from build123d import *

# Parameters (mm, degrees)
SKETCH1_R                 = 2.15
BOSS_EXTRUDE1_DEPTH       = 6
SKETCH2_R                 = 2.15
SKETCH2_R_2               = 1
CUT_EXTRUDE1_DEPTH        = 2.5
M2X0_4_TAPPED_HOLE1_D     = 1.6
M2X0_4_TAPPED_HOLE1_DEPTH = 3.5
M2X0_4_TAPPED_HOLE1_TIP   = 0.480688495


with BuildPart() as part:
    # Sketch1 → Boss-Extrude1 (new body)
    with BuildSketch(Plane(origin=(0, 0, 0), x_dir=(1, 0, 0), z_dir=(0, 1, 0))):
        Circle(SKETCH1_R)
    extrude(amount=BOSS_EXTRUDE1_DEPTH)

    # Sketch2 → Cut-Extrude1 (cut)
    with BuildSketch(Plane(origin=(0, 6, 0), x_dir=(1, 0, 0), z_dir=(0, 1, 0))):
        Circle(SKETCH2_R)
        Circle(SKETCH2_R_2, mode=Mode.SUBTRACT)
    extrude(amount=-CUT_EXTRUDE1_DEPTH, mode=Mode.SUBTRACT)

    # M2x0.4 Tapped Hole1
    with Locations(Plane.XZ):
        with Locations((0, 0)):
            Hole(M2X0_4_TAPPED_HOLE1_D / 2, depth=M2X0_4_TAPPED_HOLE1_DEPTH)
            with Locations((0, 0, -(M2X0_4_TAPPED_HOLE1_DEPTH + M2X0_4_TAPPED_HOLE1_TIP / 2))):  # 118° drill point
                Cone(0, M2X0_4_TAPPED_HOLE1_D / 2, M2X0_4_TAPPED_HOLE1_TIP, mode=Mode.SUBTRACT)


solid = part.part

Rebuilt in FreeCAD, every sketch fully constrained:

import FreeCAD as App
import Part
import Sketcher
from FreeCAD import Vector
Q = App.Units.Quantity

doc = App.newDocument("Part")
body = doc.addObject("PartDesign::Body", "Body")

# Sketch on XZ plane
sketch1 = doc.addObject("Sketcher::SketchObject", "Sketch")
body.addObject(sketch1)
sketch1.AttachmentSupport = (doc.XZ_Plane, [""])
sketch1.MapMode = "FlatFace"
sketch1.addGeometry(Part.Circle(Vector(0, 0, 0), Vector(0, 0, 1), 2.15), False)
sketch1.addConstraint([
    Sketcher.Constraint("Coincident", 0, 3, -1, 1),
    Sketcher.Constraint("Diameter", 0, Q("4.3 mm")),
])
pad1 = doc.addObject("PartDesign::Pad", "Pad")
body.addObject(pad1)
pad1.Profile = sketch1
pad1.Length = 6
pad1.Reversed = True

# Sketch on XZ plane
sketch2 = doc.addObject("Sketcher::SketchObject", "Sketch001")
body.addObject(sketch2)
sketch2.AttachmentSupport = (doc.XZ_Plane, [""])
sketch2.MapMode = "FlatFace"
sketch2.AttachmentOffset = App.Placement(Vector(0, 0, -6), App.Rotation())
sketch2.addGeometry([
    Part.Circle(Vector(0, 0, 0), Vector(0, 0, 1), 2.15),
    Part.Circle(Vector(0, 0, 0), Vector(0, 0, 1), 1),
], False)
sketch2.addConstraint([
    Sketcher.Constraint("Coincident", 0, 3, -1, 1),
    Sketcher.Constraint("Coincident", 1, 3, -1, 1),
    Sketcher.Constraint("Diameter", 1, Q("2 mm")),
    Sketcher.Constraint("Diameter", 0, Q("4.3 mm")),
])
pocket1 = doc.addObject("PartDesign::Pocket", "Pocket")
body.addObject(pocket1)
pocket1.Profile = sketch2
pocket1.Length = 2.5
pocket1.Reversed = True

# Sketch on XZ plane
sketch3 = doc.addObject("Sketcher::SketchObject", "Sketch002")
body.addObject(sketch3)
sketch3.AttachmentSupport = (doc.XZ_Plane, [""])
sketch3.MapMode = "FlatFace"
sketch3.addGeometry(Part.Circle(Vector(0, 0, 0), Vector(0, 0, 1), 0.8), False)
sketch3.addConstraint([
    Sketcher.Constraint("Coincident", 0, 3, -1, 1),
    Sketcher.Constraint("Diameter", 0, Q("1.6 mm")),
])
doc.recompute()
hole = doc.addObject("PartDesign::Hole", "Hole")
body.addObject(hole)
hole.Profile = sketch3
hole.ThreadType = "None"
hole.Diameter = 1.6
hole.DepthType = "Dimension"
hole.Depth = 3.5
hole.DrillPoint = "Angled"
hole.DrillPointAngle = 118

doc.recompute()
